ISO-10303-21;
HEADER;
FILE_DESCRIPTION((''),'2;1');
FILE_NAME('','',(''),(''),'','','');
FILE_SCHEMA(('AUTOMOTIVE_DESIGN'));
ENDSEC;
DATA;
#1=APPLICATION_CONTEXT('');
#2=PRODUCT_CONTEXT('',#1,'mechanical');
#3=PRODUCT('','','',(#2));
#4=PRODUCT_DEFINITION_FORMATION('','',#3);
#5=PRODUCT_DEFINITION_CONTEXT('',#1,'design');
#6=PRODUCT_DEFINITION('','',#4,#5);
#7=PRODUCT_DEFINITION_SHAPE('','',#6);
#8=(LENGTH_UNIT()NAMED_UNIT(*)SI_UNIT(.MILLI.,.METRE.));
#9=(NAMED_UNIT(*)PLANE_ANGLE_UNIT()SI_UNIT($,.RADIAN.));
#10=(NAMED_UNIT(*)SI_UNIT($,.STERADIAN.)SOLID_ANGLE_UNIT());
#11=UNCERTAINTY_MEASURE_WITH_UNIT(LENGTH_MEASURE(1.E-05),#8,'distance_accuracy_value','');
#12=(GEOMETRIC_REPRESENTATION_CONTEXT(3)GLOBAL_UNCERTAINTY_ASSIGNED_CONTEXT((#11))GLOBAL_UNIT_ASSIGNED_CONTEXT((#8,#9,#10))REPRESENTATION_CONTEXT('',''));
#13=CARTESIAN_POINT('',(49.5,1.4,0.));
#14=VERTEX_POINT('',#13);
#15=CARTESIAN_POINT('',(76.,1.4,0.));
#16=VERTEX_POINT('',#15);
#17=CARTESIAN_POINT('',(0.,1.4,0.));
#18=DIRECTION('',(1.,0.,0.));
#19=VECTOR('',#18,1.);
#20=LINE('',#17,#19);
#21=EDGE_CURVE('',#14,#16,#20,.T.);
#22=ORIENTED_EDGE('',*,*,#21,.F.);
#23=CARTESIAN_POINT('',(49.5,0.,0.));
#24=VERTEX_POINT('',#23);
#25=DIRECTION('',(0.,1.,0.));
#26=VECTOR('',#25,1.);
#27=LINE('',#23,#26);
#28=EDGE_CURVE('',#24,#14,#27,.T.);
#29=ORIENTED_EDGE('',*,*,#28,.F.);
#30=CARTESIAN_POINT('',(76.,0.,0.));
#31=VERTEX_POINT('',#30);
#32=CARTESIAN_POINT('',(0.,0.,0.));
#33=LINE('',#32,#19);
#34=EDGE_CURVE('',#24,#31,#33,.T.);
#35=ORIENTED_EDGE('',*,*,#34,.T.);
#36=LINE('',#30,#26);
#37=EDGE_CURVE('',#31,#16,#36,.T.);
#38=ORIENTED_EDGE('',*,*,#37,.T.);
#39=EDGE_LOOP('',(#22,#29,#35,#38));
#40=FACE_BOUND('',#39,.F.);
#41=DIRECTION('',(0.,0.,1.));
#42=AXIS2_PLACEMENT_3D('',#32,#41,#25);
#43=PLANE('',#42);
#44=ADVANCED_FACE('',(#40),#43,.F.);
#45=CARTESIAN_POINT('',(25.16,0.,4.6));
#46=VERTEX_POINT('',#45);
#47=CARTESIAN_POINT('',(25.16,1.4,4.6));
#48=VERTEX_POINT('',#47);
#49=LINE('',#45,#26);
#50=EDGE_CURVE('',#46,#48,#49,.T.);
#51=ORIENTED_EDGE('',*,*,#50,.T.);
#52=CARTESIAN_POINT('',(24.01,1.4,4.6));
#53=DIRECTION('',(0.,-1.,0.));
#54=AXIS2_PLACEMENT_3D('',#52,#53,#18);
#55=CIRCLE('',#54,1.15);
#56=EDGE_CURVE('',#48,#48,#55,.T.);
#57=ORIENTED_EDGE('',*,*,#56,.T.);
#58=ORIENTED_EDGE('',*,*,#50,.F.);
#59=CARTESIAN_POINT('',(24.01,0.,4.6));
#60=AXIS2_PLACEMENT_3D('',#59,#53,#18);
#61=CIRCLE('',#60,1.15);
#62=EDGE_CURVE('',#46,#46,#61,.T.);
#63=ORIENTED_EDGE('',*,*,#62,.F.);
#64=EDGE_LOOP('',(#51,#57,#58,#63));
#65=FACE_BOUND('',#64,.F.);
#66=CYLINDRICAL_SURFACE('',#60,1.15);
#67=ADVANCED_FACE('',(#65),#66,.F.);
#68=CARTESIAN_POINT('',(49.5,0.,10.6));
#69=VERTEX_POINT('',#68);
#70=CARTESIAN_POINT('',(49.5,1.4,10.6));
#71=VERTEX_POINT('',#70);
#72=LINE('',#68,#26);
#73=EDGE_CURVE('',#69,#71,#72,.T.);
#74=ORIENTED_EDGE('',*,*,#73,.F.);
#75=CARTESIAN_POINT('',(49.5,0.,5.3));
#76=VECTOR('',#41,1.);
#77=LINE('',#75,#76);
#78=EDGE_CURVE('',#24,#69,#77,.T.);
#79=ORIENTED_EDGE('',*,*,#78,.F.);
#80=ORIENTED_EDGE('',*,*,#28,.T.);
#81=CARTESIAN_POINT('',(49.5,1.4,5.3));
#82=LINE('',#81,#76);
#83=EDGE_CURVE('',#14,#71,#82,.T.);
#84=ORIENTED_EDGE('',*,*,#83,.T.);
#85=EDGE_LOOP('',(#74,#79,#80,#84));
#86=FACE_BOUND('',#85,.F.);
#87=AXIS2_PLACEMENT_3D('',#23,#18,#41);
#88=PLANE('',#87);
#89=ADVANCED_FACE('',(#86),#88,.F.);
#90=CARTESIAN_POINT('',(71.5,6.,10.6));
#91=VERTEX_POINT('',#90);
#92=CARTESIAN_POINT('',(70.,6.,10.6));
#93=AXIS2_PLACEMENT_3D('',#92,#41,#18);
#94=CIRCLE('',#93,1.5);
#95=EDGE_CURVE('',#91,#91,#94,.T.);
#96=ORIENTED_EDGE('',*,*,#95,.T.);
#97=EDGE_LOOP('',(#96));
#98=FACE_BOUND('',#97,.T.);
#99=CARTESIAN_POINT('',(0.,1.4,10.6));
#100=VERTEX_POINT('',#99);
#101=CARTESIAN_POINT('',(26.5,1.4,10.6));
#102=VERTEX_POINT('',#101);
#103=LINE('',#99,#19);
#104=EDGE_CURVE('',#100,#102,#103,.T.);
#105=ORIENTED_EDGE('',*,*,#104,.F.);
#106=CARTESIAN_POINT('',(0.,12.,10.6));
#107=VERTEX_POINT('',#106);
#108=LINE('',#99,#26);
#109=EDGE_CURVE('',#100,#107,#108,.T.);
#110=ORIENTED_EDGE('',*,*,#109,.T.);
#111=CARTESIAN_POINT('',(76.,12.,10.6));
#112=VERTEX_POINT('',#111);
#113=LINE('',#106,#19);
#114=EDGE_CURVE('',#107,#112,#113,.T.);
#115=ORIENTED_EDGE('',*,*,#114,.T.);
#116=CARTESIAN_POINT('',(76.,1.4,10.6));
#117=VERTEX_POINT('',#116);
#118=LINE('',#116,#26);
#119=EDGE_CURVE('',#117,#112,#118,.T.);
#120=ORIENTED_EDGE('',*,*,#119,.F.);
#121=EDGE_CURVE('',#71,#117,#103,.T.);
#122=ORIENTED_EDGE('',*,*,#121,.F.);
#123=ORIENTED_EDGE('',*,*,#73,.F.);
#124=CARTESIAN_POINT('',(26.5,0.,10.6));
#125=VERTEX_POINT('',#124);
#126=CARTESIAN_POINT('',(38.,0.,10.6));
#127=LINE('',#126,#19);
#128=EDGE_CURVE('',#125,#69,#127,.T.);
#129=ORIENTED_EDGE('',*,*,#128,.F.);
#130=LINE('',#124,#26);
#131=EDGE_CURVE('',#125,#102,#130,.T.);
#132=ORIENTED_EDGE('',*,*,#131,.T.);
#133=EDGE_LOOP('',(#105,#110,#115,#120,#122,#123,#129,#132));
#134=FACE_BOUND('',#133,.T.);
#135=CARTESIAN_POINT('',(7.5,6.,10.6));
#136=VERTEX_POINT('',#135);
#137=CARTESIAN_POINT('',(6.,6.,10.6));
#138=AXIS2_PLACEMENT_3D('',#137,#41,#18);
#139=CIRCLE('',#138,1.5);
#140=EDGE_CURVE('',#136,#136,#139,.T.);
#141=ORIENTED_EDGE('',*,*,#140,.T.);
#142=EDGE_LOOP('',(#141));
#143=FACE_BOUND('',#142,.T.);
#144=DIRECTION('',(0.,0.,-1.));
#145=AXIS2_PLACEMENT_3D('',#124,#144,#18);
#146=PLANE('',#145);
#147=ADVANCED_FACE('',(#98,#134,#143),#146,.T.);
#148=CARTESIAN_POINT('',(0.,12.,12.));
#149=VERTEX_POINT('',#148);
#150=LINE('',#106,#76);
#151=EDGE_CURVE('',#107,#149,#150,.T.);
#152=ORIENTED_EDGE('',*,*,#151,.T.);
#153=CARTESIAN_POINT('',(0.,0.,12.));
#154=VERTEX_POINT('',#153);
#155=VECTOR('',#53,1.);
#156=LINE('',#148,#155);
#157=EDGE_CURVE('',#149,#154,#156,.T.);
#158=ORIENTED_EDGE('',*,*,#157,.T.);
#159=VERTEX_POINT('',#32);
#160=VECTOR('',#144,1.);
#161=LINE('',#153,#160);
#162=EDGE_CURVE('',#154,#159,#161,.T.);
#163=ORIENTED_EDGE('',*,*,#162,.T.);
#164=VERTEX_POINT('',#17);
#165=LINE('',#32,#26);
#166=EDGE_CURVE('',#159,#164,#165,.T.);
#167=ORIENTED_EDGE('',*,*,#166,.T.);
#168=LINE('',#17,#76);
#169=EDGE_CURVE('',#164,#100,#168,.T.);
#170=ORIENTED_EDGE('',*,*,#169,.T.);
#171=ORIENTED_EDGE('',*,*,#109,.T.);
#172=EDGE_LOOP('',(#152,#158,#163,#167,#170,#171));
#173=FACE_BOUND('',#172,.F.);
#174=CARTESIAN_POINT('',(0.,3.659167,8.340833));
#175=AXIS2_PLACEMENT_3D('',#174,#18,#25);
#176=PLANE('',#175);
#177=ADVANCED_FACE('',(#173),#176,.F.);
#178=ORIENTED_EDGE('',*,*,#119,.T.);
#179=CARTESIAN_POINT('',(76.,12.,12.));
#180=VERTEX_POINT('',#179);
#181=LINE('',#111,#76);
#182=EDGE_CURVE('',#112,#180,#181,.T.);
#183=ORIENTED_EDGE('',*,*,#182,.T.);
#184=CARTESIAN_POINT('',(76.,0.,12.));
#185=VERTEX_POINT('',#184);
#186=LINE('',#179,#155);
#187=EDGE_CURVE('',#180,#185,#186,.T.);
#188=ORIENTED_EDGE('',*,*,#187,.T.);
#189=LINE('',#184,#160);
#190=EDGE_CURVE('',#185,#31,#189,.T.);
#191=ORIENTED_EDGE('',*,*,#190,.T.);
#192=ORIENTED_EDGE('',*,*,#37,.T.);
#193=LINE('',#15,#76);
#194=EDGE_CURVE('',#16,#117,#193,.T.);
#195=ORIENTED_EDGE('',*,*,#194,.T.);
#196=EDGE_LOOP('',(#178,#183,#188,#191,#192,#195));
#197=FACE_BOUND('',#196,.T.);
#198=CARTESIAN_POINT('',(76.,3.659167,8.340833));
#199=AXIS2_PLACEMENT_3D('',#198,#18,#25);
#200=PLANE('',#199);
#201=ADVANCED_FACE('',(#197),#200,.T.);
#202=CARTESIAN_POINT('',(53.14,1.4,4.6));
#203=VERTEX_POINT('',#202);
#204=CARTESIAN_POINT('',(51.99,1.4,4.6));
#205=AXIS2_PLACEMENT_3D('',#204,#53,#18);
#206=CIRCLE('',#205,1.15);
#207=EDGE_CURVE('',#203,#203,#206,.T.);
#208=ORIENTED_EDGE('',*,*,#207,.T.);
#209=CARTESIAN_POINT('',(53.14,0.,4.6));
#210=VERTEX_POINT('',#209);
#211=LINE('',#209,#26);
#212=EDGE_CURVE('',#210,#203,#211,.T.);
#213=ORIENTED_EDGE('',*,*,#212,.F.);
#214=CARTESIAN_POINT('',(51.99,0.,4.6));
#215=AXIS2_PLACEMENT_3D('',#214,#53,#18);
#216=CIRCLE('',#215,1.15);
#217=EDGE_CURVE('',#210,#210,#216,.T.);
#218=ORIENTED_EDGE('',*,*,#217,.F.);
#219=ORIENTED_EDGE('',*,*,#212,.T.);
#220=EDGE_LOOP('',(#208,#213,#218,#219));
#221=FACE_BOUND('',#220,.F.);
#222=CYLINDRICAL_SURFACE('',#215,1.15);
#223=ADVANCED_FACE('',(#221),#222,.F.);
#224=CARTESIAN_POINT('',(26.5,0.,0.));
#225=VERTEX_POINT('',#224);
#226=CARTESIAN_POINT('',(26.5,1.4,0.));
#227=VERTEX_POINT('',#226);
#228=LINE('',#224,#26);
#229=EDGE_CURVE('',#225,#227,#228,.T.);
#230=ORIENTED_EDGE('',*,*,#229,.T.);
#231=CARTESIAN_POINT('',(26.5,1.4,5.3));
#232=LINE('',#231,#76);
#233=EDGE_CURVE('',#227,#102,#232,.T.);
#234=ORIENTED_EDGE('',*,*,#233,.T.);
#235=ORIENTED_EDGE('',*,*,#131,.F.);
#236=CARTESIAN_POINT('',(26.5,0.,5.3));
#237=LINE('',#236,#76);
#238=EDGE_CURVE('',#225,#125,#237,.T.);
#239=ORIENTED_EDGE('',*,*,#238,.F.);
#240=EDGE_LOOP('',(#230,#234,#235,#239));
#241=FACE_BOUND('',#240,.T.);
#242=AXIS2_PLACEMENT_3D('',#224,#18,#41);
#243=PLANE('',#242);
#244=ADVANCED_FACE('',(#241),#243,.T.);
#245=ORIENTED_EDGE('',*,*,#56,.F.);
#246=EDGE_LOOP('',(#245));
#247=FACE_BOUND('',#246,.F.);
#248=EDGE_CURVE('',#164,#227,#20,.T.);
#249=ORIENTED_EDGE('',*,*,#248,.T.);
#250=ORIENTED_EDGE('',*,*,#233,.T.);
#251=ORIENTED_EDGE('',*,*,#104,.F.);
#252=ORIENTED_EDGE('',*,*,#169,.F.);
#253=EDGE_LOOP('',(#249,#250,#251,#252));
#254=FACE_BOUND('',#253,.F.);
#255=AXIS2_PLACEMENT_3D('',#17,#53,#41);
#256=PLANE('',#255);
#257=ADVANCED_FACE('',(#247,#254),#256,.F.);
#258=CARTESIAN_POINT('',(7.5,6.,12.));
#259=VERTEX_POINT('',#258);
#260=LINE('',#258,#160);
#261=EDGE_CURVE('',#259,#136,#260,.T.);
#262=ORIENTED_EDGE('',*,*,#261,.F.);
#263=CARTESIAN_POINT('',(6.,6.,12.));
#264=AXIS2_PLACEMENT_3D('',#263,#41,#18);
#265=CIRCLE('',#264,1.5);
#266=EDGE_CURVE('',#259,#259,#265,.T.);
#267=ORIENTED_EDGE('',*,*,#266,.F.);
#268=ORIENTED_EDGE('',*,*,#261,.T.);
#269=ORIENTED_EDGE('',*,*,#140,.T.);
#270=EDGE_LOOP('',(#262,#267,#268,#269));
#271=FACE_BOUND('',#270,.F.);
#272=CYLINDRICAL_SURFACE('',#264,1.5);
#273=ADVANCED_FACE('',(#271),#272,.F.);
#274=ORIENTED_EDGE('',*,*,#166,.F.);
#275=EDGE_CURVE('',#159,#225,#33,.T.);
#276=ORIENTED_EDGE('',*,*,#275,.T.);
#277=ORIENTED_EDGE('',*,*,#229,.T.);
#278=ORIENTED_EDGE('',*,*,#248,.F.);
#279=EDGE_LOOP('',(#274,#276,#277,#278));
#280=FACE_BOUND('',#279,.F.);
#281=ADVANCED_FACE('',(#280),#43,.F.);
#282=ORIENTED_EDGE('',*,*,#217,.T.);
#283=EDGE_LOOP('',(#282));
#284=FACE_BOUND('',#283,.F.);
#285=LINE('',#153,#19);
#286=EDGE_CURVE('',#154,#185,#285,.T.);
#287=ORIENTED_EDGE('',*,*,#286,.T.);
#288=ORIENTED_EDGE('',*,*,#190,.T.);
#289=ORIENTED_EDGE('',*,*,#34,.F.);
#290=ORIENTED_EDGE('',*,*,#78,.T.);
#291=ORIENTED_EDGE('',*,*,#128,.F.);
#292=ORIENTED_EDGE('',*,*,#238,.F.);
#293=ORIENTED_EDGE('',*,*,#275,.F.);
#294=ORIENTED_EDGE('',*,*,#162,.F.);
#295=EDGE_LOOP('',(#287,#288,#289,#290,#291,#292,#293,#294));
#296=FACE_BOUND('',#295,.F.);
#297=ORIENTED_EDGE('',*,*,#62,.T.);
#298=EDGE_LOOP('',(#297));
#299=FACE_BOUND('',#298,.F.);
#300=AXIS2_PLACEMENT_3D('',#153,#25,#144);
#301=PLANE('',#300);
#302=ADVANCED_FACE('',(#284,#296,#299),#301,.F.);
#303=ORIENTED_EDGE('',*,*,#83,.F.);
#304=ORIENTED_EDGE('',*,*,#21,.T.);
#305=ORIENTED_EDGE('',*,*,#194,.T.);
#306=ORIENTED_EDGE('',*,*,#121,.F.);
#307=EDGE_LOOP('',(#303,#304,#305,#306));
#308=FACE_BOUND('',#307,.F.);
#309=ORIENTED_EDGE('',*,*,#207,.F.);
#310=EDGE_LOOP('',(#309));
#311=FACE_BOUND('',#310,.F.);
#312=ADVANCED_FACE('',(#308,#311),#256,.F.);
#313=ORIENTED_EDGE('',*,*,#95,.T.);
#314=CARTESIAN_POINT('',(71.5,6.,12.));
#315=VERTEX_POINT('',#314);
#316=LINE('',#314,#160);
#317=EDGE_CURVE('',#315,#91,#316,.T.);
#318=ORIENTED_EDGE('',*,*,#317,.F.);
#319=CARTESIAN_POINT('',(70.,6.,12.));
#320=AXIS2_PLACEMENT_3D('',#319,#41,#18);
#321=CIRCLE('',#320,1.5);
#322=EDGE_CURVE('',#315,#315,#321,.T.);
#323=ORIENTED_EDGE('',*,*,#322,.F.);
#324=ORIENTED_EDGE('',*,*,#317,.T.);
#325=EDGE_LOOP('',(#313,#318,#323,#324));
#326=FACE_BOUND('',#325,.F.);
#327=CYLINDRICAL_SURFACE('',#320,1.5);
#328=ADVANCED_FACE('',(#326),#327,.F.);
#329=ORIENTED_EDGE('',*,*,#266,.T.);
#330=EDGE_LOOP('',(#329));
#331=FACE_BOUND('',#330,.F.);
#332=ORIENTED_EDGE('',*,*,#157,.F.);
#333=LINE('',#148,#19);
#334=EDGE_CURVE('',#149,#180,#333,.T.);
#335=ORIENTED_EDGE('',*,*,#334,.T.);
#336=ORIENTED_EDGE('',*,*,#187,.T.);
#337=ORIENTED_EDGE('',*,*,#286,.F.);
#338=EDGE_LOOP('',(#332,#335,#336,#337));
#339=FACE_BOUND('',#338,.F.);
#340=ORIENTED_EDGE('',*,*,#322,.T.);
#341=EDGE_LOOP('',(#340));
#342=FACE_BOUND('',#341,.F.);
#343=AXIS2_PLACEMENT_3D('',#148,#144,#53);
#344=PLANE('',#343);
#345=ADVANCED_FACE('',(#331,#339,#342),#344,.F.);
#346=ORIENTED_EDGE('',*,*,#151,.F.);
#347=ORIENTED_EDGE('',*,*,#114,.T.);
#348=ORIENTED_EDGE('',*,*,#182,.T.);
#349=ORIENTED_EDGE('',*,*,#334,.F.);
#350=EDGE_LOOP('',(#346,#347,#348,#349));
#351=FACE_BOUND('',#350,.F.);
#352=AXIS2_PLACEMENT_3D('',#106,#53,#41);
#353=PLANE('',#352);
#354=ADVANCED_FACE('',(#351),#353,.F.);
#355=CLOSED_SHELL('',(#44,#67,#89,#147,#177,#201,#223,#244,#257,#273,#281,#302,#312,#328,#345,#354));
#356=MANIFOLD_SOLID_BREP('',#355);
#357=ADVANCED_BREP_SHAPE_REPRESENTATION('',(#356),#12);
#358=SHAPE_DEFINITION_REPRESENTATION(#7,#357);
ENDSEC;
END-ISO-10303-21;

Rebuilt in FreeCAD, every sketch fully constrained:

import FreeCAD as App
import Part
import Sketcher


def add_polygon(sketch, points):
    """Adds a closed chain of lines whose ends are joined by coincident constraints."""
    first, n = sketch.GeometryCount, len(points)
    for a, b in zip(points, points[1:] + points[:1]):
        sketch.addGeometry(Part.LineSegment(App.Vector(*a, 0), App.Vector(*b, 0)), False)
    for i in range(n):
        sketch.addConstraint(Sketcher.Constraint("Coincident", first + i, 2, first + (i + 1) % n, 1))

doc = App.newDocument("Part")
body = doc.addObject("PartDesign::Body", "Body")

# Sketch on YZ plane
sketch1 = body.newObject("Sketcher::SketchObject", "Sketch")
sketch1.AttachmentSupport = (doc.getObject("YZ_Plane"), [""])
sketch1.MapMode = "FlatFace"
add_polygon(sketch1, [(0, 12), (0, 0), (1.4, 0), (1.4, 10.6), (12, 10.6), (12, 12)])  # lines 0-5
sketch1.addConstraint([
    Sketcher.Constraint("Vertical", 0),
    Sketcher.Constraint("Horizontal", 1),
    Sketcher.Constraint("Vertical", 2),
    Sketcher.Constraint("Horizontal", 3),
    Sketcher.Constraint("Vertical", 4),
    Sketcher.Constraint("Horizontal", 5),
    Sketcher.Constraint("Coincident", 0, 2, -1, 1),
    Sketcher.Constraint("Equal", 5, 0),
    Sketcher.Constraint("Equal", 3, 2),
    Sketcher.Constraint("DistanceX", 5, 2, 5, 1, 12.0),
    Sketcher.Constraint("DistanceX", 1, 1, 1, 2, 1.4),
])
pad1 = body.newObject("PartDesign::Pad", "Pad")
pad1.Profile = sketch1
pad1.Length = 76

# Sketch on XZ plane
sketch2 = body.newObject("Sketcher::SketchObject", "Sketch001")
sketch2.AttachmentSupport = (doc.getObject("XZ_Plane"), [""])
sketch2.MapMode = "FlatFace"
add_polygon(sketch2, [(26.5, 10.6), (26.5, 0), (49.5, 0), (49.5, 10.6)])  # lines 0-3
sketch2.addGeometry(Part.Circle(App.Vector(24.01, 4.6, 0), App.Vector(0, 0, 1), 1.15), False)  # 4
sketch2.addGeometry(Part.Circle(App.Vector(51.99, 4.6, 0), App.Vector(0, 0, 1), 1.15), False)  # 5
sketch2.addConstraint([
    Sketcher.Constraint("Vertical", 0),
    Sketcher.Constraint("Horizontal", 1),
    Sketcher.Constraint("Vertical", 2),
    Sketcher.Constraint("Horizontal", 3),
    Sketcher.Constraint("Equal", 4, 5),
    Sketcher.Constraint("PointOnObject", 0, 2, -1),
    Sketcher.Constraint("Horizontal", 4, 3, 5, 3),
    Sketcher.Constraint("Diameter", 4, 2.3),
    Sketcher.Constraint("DistanceX", 1, 1, 1, 2, 23.0),
    Sketcher.Constraint("DistanceY", 0, 2, 0, 1, 10.6),
    Sketcher.Constraint("DistanceY", 5, 3, 2, 2, 6.0),
    Sketcher.Constraint("DistanceX", -1, 1, 0, 2, 26.5),
    Sketcher.Constraint("DistanceX", -1, 1, 4, 3, 24.01),
    Sketcher.Constraint("DistanceX", -1, 1, 5, 3, 51.99),
])
pocket1 = body.newObject("PartDesign::Pocket", "Pocket")
pocket1.Profile = sketch2
pocket1.Type = "ThroughAll"

# Sketch on XY plane
sketch3 = body.newObject("Sketcher::SketchObject", "Sketch002")
sketch3.AttachmentSupport = (doc.getObject("XY_Plane"), [""])
sketch3.MapMode = "FlatFace"
sketch3.AttachmentOffset = App.Placement(App.Vector(0, 0, 12), App.Rotation())
sketch3.addGeometry([
    Part.Circle(App.Vector(6, 6, 0), App.Vector(0, 0, 1), 1.5),
    Part.Circle(App.Vector(70, 6, 0), App.Vector(0, 0, 1), 1.5),
], False)
sketch3.addConstraint([
    Sketcher.Constraint("Equal", 0, 1),
    Sketcher.Constraint("Horizontal", 0, 3, 1, 3),
    Sketcher.Constraint("Diameter", 0, 3.0),
    Sketcher.Constraint("DistanceX", -1, 1, 0, 3, 6.0),
    Sketcher.Constraint("DistanceY", -1, 1, 0, 3, 6.0),
    Sketcher.Constraint("DistanceX", -1, 1, 1, 3, 70.0),
])
pocket2 = body.newObject("PartDesign::Pocket", "Pocket001")
pocket2.Profile = sketch3
pocket2.Type = "ThroughAll"

doc.recompute()
